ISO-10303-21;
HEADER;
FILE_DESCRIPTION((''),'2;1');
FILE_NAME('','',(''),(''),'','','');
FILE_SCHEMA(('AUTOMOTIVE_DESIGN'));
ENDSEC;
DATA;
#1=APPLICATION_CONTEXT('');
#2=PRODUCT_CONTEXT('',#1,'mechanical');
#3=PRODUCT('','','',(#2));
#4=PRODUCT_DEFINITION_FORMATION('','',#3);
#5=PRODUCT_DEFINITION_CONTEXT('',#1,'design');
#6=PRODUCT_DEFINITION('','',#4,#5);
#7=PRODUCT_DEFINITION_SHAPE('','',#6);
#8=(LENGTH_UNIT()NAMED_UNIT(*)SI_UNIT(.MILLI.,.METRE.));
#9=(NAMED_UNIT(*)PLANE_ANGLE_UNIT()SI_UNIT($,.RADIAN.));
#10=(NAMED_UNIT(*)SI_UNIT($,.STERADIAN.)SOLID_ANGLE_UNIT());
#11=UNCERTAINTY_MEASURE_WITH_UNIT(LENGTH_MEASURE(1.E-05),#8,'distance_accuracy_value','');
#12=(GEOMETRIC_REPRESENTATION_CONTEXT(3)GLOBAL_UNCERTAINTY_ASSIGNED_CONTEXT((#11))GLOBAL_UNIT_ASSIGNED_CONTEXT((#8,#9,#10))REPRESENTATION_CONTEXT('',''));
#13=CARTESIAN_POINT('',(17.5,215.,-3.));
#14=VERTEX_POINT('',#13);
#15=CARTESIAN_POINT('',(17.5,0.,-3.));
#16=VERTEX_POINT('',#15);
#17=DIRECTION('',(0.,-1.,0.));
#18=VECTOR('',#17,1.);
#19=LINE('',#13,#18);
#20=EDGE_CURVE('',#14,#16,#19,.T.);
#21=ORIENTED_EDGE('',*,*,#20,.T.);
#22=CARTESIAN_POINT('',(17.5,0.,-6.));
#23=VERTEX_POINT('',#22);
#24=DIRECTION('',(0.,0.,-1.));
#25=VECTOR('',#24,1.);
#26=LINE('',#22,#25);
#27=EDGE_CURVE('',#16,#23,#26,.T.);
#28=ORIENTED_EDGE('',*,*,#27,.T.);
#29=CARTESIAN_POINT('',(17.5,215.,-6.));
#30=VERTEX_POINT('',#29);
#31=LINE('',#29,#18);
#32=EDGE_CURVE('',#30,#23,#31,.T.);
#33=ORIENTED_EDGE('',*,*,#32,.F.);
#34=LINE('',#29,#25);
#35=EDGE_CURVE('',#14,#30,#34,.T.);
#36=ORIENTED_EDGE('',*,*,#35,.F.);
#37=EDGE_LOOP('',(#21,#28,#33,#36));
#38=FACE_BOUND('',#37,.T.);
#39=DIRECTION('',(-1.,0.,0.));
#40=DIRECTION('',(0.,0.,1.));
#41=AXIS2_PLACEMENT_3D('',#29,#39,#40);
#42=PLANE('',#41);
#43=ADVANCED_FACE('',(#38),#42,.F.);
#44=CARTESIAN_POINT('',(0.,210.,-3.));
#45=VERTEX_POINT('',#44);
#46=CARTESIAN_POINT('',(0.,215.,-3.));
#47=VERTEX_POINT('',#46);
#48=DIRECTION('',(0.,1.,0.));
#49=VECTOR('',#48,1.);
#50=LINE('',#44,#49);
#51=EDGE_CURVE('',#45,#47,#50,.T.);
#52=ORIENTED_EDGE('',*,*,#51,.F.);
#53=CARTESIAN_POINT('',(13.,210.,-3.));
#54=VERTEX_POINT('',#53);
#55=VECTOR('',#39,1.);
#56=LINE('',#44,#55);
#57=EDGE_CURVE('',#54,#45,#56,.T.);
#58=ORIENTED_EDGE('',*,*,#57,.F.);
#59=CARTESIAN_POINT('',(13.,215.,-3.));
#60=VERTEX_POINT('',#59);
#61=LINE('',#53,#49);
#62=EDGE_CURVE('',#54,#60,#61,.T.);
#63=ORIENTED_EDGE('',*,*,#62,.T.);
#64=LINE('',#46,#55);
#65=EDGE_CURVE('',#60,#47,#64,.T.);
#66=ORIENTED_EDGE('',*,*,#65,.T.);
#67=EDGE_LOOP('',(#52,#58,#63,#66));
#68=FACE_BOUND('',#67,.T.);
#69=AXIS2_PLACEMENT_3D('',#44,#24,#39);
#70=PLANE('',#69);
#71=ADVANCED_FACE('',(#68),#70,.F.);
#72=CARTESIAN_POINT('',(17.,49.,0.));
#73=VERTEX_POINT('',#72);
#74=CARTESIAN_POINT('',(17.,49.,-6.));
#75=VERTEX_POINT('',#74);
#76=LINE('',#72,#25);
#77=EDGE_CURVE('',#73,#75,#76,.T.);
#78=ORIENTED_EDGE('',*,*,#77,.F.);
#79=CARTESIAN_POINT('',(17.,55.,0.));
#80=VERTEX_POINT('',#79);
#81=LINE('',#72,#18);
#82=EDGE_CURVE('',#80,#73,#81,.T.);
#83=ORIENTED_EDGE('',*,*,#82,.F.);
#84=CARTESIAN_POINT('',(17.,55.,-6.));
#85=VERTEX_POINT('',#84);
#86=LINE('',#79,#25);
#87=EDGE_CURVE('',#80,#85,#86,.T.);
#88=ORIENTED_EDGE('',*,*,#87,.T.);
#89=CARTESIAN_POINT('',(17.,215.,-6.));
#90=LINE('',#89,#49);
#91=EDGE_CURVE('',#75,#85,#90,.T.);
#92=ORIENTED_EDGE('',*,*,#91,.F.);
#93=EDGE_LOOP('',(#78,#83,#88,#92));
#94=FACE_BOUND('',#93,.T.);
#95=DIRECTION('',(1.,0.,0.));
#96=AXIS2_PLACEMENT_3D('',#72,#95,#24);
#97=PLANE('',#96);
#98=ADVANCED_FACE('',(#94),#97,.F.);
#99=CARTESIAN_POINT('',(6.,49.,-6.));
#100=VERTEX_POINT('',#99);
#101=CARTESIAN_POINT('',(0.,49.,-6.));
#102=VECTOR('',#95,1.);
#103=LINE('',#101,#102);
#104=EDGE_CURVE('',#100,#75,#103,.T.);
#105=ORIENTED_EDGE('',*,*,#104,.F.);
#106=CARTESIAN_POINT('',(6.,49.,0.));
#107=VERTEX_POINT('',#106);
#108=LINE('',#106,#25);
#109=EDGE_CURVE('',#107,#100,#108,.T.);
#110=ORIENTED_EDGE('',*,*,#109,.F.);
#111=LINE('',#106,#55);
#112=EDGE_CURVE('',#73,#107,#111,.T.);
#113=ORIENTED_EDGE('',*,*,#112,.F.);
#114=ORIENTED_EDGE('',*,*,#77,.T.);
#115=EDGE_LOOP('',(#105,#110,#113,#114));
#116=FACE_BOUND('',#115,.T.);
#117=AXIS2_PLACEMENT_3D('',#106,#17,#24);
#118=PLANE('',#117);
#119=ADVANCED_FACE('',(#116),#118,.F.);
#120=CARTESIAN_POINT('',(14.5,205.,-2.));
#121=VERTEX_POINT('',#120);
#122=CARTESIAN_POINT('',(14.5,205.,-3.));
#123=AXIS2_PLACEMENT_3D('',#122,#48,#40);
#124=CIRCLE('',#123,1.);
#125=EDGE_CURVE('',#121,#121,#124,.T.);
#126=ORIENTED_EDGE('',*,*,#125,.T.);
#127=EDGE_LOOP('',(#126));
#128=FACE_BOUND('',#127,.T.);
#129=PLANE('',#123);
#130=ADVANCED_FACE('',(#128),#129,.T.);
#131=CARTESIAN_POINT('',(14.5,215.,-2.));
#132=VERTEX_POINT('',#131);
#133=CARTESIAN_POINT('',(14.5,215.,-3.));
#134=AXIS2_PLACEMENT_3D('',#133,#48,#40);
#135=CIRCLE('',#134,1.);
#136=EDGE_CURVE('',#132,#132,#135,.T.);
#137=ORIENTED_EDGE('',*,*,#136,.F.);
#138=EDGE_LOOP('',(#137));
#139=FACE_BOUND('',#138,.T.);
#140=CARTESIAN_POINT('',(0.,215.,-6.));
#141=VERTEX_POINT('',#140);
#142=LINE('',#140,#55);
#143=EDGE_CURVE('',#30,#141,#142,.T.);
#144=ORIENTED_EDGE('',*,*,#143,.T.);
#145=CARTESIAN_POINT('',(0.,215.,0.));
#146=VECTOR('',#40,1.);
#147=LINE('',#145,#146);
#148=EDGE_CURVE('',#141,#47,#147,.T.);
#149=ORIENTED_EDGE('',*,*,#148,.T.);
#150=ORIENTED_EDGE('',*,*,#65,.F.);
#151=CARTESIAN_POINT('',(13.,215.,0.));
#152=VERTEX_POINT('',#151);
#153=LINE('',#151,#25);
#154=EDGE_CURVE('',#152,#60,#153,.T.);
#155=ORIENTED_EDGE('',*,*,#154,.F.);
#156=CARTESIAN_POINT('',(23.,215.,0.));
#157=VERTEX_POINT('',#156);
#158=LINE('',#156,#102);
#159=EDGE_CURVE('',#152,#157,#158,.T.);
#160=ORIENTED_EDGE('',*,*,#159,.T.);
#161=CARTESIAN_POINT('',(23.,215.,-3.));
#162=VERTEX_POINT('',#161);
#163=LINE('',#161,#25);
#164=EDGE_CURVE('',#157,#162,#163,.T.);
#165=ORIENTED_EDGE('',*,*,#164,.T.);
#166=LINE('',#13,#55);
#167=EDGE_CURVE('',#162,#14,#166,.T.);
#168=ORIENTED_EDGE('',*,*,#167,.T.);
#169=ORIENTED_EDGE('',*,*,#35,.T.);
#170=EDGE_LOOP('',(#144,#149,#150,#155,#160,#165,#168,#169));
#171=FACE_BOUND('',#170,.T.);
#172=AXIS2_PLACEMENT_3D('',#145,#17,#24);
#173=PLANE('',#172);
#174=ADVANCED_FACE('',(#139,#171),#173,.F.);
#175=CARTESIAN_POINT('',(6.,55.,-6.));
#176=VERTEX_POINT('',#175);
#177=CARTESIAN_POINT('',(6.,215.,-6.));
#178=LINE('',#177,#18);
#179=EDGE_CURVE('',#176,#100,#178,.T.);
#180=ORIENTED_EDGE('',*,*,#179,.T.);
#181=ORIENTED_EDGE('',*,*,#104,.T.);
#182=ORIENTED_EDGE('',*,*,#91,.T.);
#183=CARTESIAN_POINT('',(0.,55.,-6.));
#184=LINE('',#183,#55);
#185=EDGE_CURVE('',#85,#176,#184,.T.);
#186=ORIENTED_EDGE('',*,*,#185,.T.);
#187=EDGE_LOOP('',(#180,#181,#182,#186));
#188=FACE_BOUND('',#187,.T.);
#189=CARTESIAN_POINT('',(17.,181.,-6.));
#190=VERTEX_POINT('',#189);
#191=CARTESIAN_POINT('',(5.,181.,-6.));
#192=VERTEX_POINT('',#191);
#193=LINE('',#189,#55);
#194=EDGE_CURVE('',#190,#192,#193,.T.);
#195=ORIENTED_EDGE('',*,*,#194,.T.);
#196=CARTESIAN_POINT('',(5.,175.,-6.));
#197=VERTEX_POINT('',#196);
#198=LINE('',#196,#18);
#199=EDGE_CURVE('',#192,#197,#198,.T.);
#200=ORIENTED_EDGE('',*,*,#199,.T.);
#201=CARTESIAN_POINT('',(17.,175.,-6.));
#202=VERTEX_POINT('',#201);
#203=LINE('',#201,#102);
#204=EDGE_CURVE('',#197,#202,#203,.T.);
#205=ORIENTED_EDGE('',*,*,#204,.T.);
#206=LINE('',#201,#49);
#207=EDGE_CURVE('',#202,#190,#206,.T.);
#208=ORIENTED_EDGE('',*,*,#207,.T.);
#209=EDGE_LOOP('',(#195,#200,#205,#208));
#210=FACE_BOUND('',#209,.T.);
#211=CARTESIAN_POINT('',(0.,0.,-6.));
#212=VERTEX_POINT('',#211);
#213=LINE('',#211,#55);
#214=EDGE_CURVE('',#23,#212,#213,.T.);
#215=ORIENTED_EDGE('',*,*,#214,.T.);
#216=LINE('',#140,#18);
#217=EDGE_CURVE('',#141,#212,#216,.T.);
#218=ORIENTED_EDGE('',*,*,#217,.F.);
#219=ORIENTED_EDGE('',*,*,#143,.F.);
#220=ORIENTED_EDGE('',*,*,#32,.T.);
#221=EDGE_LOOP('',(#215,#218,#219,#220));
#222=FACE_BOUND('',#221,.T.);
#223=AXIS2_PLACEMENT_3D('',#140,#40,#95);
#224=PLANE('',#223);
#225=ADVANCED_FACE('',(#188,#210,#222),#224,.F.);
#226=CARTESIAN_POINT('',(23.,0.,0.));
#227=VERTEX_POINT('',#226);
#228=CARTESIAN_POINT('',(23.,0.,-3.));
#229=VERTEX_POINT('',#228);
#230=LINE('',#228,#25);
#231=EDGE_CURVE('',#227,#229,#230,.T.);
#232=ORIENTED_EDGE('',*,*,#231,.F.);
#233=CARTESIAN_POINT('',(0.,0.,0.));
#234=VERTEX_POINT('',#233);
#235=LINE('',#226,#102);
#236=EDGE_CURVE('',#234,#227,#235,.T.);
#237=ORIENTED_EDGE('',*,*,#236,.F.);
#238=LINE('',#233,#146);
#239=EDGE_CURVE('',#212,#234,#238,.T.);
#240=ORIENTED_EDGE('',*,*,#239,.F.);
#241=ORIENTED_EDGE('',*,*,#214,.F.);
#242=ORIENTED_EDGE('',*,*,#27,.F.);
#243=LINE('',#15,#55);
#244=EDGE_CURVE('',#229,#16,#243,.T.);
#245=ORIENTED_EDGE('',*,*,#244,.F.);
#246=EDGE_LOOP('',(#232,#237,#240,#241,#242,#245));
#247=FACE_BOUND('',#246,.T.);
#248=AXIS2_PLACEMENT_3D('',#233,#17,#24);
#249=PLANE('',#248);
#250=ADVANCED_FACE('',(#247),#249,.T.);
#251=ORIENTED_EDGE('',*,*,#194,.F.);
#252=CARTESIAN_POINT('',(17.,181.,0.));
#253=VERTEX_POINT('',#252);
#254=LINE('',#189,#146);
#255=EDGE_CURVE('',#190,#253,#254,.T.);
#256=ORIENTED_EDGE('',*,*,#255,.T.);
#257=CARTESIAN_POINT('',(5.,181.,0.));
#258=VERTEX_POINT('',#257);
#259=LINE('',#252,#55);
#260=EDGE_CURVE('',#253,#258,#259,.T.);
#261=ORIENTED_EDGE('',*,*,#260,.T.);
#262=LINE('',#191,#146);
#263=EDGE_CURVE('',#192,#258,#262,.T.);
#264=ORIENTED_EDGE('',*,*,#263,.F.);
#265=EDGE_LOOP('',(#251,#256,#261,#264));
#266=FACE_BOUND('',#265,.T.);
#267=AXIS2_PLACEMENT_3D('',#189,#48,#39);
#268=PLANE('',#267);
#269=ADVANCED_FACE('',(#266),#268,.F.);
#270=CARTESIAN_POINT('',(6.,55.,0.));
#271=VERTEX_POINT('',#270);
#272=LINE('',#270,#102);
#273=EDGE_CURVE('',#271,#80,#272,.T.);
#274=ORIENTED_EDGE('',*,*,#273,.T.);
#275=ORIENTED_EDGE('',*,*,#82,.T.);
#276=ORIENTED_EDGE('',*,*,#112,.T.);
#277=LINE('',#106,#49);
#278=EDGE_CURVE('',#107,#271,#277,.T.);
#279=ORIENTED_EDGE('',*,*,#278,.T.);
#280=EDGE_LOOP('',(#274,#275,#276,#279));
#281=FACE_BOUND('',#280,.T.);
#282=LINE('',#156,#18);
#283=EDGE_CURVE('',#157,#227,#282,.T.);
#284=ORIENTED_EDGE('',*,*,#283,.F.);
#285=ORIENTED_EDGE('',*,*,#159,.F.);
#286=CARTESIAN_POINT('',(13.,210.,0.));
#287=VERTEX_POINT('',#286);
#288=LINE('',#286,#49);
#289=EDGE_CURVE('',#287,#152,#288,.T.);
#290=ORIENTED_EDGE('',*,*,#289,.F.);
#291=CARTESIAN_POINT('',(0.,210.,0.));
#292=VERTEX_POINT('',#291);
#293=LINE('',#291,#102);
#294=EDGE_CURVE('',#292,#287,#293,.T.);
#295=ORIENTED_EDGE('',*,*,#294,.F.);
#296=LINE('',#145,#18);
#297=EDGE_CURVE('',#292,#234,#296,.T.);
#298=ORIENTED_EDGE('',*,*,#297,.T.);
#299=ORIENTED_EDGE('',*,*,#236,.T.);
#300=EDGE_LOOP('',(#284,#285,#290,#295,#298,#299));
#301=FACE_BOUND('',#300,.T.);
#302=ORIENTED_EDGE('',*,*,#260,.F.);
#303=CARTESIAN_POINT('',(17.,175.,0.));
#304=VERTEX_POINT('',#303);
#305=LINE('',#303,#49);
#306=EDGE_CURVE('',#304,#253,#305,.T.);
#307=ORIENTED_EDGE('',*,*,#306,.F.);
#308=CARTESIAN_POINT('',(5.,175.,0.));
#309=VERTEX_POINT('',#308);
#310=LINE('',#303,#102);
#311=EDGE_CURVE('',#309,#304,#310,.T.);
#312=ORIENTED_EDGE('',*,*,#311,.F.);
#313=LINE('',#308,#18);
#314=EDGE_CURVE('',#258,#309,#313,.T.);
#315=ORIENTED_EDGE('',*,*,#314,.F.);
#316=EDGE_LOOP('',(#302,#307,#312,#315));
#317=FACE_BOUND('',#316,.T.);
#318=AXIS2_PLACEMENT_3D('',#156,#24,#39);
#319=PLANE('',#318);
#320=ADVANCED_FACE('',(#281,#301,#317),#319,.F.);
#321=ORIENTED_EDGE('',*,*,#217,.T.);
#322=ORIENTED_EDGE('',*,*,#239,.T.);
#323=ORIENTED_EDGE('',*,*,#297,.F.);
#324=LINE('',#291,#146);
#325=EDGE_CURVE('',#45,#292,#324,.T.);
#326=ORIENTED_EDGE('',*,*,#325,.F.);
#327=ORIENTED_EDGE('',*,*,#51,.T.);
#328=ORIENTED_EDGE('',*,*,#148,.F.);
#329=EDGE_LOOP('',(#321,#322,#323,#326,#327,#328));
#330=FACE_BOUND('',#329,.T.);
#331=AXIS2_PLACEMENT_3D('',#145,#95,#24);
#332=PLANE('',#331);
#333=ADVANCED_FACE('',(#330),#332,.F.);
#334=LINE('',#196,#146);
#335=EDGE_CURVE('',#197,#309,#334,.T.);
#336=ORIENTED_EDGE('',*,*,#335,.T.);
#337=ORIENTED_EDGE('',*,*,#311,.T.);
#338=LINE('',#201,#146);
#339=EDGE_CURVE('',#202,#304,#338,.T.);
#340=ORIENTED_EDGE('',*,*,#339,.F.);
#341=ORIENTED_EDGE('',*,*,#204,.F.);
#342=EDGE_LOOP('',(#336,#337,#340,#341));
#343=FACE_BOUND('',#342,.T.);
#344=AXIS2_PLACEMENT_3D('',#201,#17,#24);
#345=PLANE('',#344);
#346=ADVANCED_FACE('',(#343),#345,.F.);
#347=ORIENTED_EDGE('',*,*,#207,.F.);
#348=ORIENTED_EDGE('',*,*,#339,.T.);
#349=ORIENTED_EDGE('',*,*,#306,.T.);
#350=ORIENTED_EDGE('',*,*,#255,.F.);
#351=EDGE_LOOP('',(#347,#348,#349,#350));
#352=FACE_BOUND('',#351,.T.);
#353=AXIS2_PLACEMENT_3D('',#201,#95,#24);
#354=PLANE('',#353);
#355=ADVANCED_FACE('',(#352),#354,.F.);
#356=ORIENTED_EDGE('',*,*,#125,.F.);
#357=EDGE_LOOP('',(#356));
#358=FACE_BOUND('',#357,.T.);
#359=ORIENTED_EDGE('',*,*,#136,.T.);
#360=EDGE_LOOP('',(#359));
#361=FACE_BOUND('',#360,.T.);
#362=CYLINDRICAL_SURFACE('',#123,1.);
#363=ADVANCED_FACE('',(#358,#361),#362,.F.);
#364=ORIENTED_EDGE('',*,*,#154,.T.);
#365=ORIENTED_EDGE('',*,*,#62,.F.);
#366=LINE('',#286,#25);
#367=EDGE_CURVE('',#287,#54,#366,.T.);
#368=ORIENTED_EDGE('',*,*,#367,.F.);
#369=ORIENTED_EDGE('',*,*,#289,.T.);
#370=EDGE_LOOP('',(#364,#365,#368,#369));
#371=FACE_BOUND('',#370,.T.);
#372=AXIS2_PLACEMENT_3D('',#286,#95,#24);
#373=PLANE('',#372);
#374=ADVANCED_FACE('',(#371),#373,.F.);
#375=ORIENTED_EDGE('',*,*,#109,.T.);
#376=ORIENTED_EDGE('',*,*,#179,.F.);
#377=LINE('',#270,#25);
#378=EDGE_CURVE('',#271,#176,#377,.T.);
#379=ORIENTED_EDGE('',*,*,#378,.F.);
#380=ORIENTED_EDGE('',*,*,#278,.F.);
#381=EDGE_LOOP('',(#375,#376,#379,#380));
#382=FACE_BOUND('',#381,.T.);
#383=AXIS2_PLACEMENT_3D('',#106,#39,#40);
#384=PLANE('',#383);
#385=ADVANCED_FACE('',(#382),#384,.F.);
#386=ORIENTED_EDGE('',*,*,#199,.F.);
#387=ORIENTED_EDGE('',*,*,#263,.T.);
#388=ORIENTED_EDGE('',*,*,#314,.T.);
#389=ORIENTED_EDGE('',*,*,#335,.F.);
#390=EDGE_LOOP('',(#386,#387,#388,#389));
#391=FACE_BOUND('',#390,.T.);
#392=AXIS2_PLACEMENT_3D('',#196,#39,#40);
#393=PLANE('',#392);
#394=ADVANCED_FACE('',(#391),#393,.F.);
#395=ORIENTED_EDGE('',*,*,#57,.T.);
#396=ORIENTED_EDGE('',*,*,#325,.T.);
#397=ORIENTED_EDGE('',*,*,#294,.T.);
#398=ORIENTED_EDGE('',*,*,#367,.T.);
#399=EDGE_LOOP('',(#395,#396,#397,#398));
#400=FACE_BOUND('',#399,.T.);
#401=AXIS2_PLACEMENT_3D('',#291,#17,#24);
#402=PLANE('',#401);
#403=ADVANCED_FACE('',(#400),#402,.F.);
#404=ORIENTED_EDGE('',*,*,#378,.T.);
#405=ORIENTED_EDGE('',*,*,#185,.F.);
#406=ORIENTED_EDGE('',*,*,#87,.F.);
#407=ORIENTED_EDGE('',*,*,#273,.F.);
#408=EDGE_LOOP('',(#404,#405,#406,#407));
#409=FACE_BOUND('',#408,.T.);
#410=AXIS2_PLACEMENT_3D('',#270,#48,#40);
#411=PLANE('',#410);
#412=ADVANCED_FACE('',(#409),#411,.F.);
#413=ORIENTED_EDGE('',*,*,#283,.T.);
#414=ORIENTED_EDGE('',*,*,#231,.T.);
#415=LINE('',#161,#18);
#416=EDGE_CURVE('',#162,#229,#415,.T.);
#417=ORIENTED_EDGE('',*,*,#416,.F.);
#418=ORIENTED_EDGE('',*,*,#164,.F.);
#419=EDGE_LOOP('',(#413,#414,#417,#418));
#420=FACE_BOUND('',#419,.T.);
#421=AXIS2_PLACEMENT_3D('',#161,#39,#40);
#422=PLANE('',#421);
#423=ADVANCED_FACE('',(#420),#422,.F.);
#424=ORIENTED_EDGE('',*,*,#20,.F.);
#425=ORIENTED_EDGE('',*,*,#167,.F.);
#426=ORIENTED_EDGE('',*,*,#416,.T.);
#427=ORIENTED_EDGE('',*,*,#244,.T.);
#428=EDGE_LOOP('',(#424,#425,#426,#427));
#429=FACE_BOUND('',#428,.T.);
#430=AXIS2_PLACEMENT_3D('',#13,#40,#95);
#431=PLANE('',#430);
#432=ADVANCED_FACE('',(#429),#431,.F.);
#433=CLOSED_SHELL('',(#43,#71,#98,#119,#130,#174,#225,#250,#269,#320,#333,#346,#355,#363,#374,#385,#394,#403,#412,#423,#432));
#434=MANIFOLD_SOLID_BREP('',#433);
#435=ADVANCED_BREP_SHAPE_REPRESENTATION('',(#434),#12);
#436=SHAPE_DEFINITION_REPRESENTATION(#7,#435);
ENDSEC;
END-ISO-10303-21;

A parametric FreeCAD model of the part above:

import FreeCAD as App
import Part
import Sketcher
Q = App.Units.Quantity


def add_polygon(sketch, points):
    """Adds a closed chain of lines whose ends are joined by coincident constraints."""
    first, n = sketch.GeometryCount, len(points)
    for a, b in zip(points, points[1:] + points[:1]):
        sketch.addGeometry(Part.LineSegment(App.Vector(*a, 0), App.Vector(*b, 0)), False)
    for i in range(n):
        sketch.addConstraint(Sketcher.Constraint("Coincident", first + i, 2, first + (i + 1) % n, 1))

doc = App.newDocument("Part")
body = doc.addObject("PartDesign::Body", "Body")

# Sketch on XZ plane
sketch1 = doc.addObject("Sketcher::SketchObject", "Sketch")
body.addObject(sketch1)
sketch1.AttachmentSupport = (doc.XZ_Plane, [""])
sketch1.MapMode = "FlatFace"
add_polygon(sketch1, [(0, -6), (0, 0), (23, 0), (23, -3), (17.5, -3), (17.5, -6)])  # lines 0-5
sketch1.addConstraint([
    Sketcher.Constraint("Vertical", 0),
    Sketcher.Constraint("Horizontal", 1),
    Sketcher.Constraint("Vertical", 2),
    Sketcher.Constraint("Horizontal", 3),
    Sketcher.Constraint("Vertical", 4),
    Sketcher.Constraint("Horizontal", 5),
    Sketcher.Constraint("Coincident", 0, 2, -1, 1),
    Sketcher.Constraint("Equal", 2, 4),
    Sketcher.Constraint("DistanceX", 1, 1, 1, 2, Q("23 mm")),
    Sketcher.Constraint("DistanceY", 0, 1, 0, 2, Q("6 mm")),
    Sketcher.Constraint("DistanceX", 3, 2, 3, 1, Q("5.5 mm")),
])
pad1 = doc.addObject("PartDesign::Pad", "Pad")
body.addObject(pad1)
pad1.Profile = sketch1
pad1.Length = 215
pad1.Reversed = True

# Sketch on XZ plane
sketch2 = doc.addObject("Sketcher::SketchObject", "Sketch001")
body.addObject(sketch2)
sketch2.AttachmentSupport = (doc.XZ_Plane, [""])
sketch2.MapMode = "FlatFace"
sketch2.AttachmentOffset = App.Placement(App.Vector(0, 0, -215), App.Rotation())
add_polygon(sketch2, [(0, -3), (0, 0), (13, 0), (13, -3)])  # lines 0-3
sketch2.addConstraint([
    Sketcher.Constraint("Vertical", 0),
    Sketcher.Constraint("Horizontal", 1),
    Sketcher.Constraint("Vertical", 2),
    Sketcher.Constraint("Horizontal", 3),
    Sketcher.Constraint("Coincident", 0, 2, -1, 1),
    Sketcher.Constraint("DistanceX", 1, 1, 1, 2, Q("13 mm")),
    Sketcher.Constraint("DistanceY", 0, 1, 0, 2, Q("3 mm")),
])
pocket1 = doc.addObject("PartDesign::Pocket", "Pocket")
body.addObject(pocket1)
pocket1.Profile = sketch2
pocket1.Length = 5
pocket1.Reversed = True

# Sketch on XY plane
sketch3 = doc.addObject("Sketcher::SketchObject", "Sketch002")
body.addObject(sketch3)
sketch3.AttachmentSupport = (doc.XY_Plane, [""])
sketch3.MapMode = "FlatFace"
add_polygon(sketch3, [(5, 181), (5, 175), (17, 175), (17, 181)])  # lines 0-3
sketch3.addConstraint([
    Sketcher.Constraint("Vertical", 0),
    Sketcher.Constraint("Horizontal", 1),
    Sketcher.Constraint("Vertical", 2),
    Sketcher.Constraint("Horizontal", 3),
    Sketcher.Constraint("DistanceX", 1, 1, 1, 2, Q("12 mm")),
    Sketcher.Constraint("DistanceY", 0, 2, 0, 1, Q("6 mm")),
    Sketcher.Constraint("DistanceX", -1, 1, 0, 2, Q("5 mm")),
    Sketcher.Constraint("DistanceY", -1, 1, 0, 2, Q("175 mm")),
])
pocket2 = doc.addObject("PartDesign::Pocket", "Pocket001")
body.addObject(pocket2)
pocket2.Profile = sketch3
pocket2.Type = "ThroughAll"

# Sketch on XZ plane
sketch4 = doc.addObject("Sketcher::SketchObject", "Sketch003")
body.addObject(sketch4)
sketch4.AttachmentSupport = (doc.XZ_Plane, [""])
sketch4.MapMode = "FlatFace"
sketch4.AttachmentOffset = App.Placement(App.Vector(0, 0, -215), App.Rotation())
sketch4.addGeometry(Part.Circle(App.Vector(14.5, -3, 0), App.Vector(0, 0, 1), 1), False)
sketch4.addConstraint([
    Sketcher.Constraint("Diameter", 0, Q("2 mm")),
    Sketcher.Constraint("DistanceY", 0, 3, -1, 1, Q("3 mm")),
    Sketcher.Constraint("DistanceX", -1, 1, 0, 3, Q("14.5 mm")),
])
pocket3 = doc.addObject("PartDesign::Pocket", "Pocket002")
body.addObject(pocket3)
pocket3.Profile = sketch4
pocket3.Length = 10
pocket3.Reversed = True

# Sketch on XY plane
sketch5 = doc.addObject("Sketcher::SketchObject", "Sketch004")
body.addObject(sketch5)
sketch5.AttachmentSupport = (doc.XY_Plane, [""])
sketch5.MapMode = "FlatFace"
sketch5.AttachmentOffset = App.Placement(App.Vector(0, 0, -6), App.Rotation())
add_polygon(sketch5, [(17, 55), (17, 49), (6, 49), (6, 55)])  # lines 0-3
sketch5.addConstraint([
    Sketcher.Constraint("Vertical", 0),
    Sketcher.Constraint("Horizontal", 1),
    Sketcher.Constraint("Vertical", 2),
    Sketcher.Constraint("Horizontal", 3),
    Sketcher.Constraint("DistanceX", 1, 2, 1, 1, Q("11 mm")),
    Sketcher.Constraint("DistanceY", 0, 2, 0, 1, Q("6 mm")),
    Sketcher.Constraint("DistanceX", -1, 1, 0, 2, Q("17 mm")),
    Sketcher.Constraint("DistanceY", -1, 1, 0, 2, Q("49 mm")),
])
pocket4 = doc.addObject("PartDesign::Pocket", "Pocket003")
body.addObject(pocket4)
pocket4.Profile = sketch5
pocket4.Type = "ThroughAll"
pocket4.Midplane = True

doc.recompute()
